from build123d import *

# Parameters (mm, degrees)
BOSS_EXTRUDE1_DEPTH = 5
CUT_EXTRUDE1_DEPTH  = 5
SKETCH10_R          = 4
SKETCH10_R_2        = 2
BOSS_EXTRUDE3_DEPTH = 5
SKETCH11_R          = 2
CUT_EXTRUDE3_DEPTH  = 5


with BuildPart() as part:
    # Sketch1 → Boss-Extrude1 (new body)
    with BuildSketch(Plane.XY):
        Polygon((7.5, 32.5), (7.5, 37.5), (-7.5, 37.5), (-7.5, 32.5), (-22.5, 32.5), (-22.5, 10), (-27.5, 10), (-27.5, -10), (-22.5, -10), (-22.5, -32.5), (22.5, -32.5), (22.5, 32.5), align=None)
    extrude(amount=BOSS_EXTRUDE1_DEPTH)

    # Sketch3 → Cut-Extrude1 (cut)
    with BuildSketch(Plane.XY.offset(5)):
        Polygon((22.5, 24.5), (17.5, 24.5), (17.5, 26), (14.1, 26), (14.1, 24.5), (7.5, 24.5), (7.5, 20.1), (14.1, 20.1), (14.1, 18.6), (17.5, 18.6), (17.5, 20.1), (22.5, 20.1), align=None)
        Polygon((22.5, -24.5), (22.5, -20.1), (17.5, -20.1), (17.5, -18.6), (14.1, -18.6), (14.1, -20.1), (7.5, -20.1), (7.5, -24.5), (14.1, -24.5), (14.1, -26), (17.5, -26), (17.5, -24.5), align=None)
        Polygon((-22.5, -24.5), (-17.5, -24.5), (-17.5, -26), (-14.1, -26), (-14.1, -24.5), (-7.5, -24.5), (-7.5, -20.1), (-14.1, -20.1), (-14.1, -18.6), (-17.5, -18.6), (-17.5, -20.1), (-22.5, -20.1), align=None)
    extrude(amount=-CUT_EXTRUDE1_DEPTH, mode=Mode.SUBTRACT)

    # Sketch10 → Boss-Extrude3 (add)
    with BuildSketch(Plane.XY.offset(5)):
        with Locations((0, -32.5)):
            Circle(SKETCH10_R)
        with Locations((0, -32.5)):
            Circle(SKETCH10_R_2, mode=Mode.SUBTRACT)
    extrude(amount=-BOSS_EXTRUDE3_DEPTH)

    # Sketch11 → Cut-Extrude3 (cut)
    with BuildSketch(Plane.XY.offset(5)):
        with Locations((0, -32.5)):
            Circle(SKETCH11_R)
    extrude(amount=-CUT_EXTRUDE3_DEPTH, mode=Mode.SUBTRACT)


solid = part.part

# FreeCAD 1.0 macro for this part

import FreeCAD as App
import Part
import Sketcher
Q = App.Units.Quantity

doc = App.newDocument("Part")
body = doc.addObject("PartDesign::Body", "Body")

sketch1 = body.newObject("Sketcher::SketchObject", "Sketch")
sketch1.AttachmentSupport = (doc.getObject("XY_Plane"), [""])
sketch1.MapMode = "FlatFace"
sketch1.addGeometry([
    Part.LineSegment(App.Vector(8, 32, 0), App.Vector(8, 38, 0)),
    Part.LineSegment(App.Vector(8, 38, 0), App.Vector(-8, 38, 0)),
    Part.LineSegment(App.Vector(-8, 38, 0), App.Vector(-8, 32, 0)),
    Part.LineSegment(App.Vector(-8, 32, 0), App.Vector(-22, 32, 0)),
    Part.LineSegment(App.Vector(-22, 32, 0), App.Vector(-22, 10, 0)),
    Part.LineSegment(App.Vector(-22, 10, 0), App.Vector(-28, 10, 0)),
    Part.LineSegment(App.Vector(-28, 10, 0), App.Vector(-28, -10, 0)),
    Part.LineSegment(App.Vector(-28, -10, 0), App.Vector(-22, -10, 0)),
    Part.LineSegment(App.Vector(-22, -10, 0), App.Vector(-22, -32, 0)),
    Part.LineSegment(App.Vector(-22, -32, 0), App.Vector(22, -32, 0)),
    Part.LineSegment(App.Vector(22, -32, 0), App.Vector(22, 32, 0)),
    Part.LineSegment(App.Vector(22, 32, 0), App.Vector(8, 32, 0)),
], False)
sketch1.addConstraint([
    Sketcher.Constraint("Coincident", 0, 2, 1, 1),
    Sketcher.Constraint("Coincident", 1, 2, 2, 1),
    Sketcher.Constraint("Coincident", 2, 2, 3, 1),
    Sketcher.Constraint("Coincident", 3, 2, 4, 1),
    Sketcher.Constraint("Coincident", 4, 2, 5, 1),
    Sketcher.Constraint("Coincident", 5, 2, 6, 1),
    Sketcher.Constraint("Coincident", 6, 2, 7, 1),
    Sketcher.Constraint("Coincident", 7, 2, 8, 1),
    Sketcher.Constraint("Coincident", 8, 2, 9, 1),
    Sketcher.Constraint("Coincident", 9, 2, 10, 1),
    Sketcher.Constraint("Coincident", 10, 2, 11, 1),
    Sketcher.Constraint("Coincident", 11, 2, 0, 1),
    Sketcher.Constraint("Vertical", 0),
    Sketcher.Constraint("Horizontal", 1),
    Sketcher.Constraint("Vertical", 2),
    Sketcher.Constraint("Horizontal", 3),
    Sketcher.Constraint("Vertical", 4),
    Sketcher.Constraint("Horizontal", 5),
    Sketcher.Constraint("Vertical", 6),
    Sketcher.Constraint("Horizontal", 7),
    Sketcher.Constraint("Vertical", 8),
    Sketcher.Constraint("Horizontal", 9),
    Sketcher.Constraint("Vertical", 10),
    Sketcher.Constraint("Horizontal", 11),
    Sketcher.Constraint("Symmetric", 3, 2, 9, 2, -1, 1),
    Sketcher.Constraint("Symmetric", 8, 2, 10, 2, -1, 1),
    Sketcher.Constraint("Equal", 1, 3),
    Sketcher.Constraint("Equal", 3, 11),
    Sketcher.Constraint("Equal", 7, 0),
    Sketcher.Constraint("Equal", 4, 8),
    Sketcher.Constraint("DistanceX", 1, 2, 1, 1, Q("15 mm")),
    Sketcher.Constraint("DistanceX", 5, 2, 5, 1, Q("5 mm")),
    Sketcher.Constraint("DistanceY", 6, 2, 6, 1, Q("20 mm")),
    Sketcher.Constraint("DistanceY", 10, 1, 10, 2, Q("65 mm")),
])
pad1 = body.newObject("PartDesign::Pad", "Pad")
pad1.Profile = sketch1
pad1.Length = 5

sketch2 = body.newObject("Sketcher::SketchObject", "Sketch001")
sketch2.AttachmentSupport = (doc.getObject("XY_Plane"), [""])
sketch2.MapMode = "FlatFace"
sketch2.AttachmentOffset = App.Placement(App.Vector(0, 0, 5), App.Rotation())
sketch2.addGeometry([
    Part.LineSegment(App.Vector(22.5, 24.5, 0), App.Vector(17.5, 24.5, 0)),
    Part.LineSegment(App.Vector(17.5, 24.5, 0), App.Vector(17.5, 26, 0)),
    Part.LineSegment(App.Vector(17.5, 26, 0), App.Vector(14.1, 26, 0)),
    Part.LineSegment(App.Vector(14.1, 26, 0), App.Vector(14.1, 24.5, 0)),
    Part.LineSegment(App.Vector(14.1, 24.5, 0), App.Vector(7.5, 24.5, 0)),
    Part.LineSegment(App.Vector(7.5, 24.5, 0), App.Vector(7.5, 20.1, 0)),
    Part.LineSegment(App.Vector(7.5, 20.1, 0), App.Vector(14.1, 20.1, 0)),
    Part.LineSegment(App.Vector(14.1, 20.1, 0), App.Vector(14.1, 18.6, 0)),
    Part.LineSegment(App.Vector(14.1, 18.6, 0), App.Vector(17.5, 18.6, 0)),
    Part.LineSegment(App.Vector(17.5, 18.6, 0), App.Vector(17.5, 20.1, 0)),
    Part.LineSegment(App.Vector(17.5, 20.1, 0), App.Vector(22.5, 20.1, 0)),
    Part.LineSegment(App.Vector(22.5, 20.1, 0), App.Vector(22.5, 24.5, 0)),
    Part.LineSegment(App.Vector(22.5, -24.5, 0), App.Vector(22.5, -20.1, 0)),
    Part.LineSegment(App.Vector(22.5, -20.1, 0), App.Vector(17.5, -20.1, 0)),
    Part.LineSegment(App.Vector(17.5, -20.1, 0), App.Vector(17.5, -18.6, 0)),
    Part.LineSegment(App.Vector(17.5, -18.6, 0), App.Vector(14.1, -18.6, 0)),
    Part.LineSegment(App.Vector(14.1, -18.6, 0), App.Vector(14.1, -20.1, 0)),
    Part.LineSegment(App.Vector(14.1, -20.1, 0), App.Vector(7.5, -20.1, 0)),
    Part.LineSegment(App.Vector(7.5, -20.1, 0), App.Vector(7.5, -24.5, 0)),
    Part.LineSegment(App.Vector(7.5, -24.5, 0), App.Vector(14.1, -24.5, 0)),
    Part.LineSegment(App.Vector(14.1, -24.5, 0), App.Vector(14.1, -26, 0)),
    Part.LineSegment(App.Vector(14.1, -26, 0), App.Vector(17.5, -26, 0)),
    Part.LineSegment(App.Vector(17.5, -26, 0), App.Vector(17.5, -24.5, 0)),
    Part.LineSegment(App.Vector(17.5, -24.5, 0), App.Vector(22.5, -24.5, 0)),
    Part.LineSegment(App.Vector(-22.5, -24.5, 0), App.Vector(-17.5, -24.5, 0)),
    Part.LineSegment(App.Vector(-17.5, -24.5, 0), App.Vector(-17.5, -26, 0)),
    Part.LineSegment(App.Vector(-17.5, -26, 0), App.Vector(-14.1, -26, 0)),
    Part.LineSegment(App.Vector(-14.1, -26, 0), App.Vector(-14.1, -24.5, 0)),
    Part.LineSegment(App.Vector(-14.1, -24.5, 0), App.Vector(-7.5, -24.5, 0)),
    Part.LineSegment(App.Vector(-7.5, -24.5, 0), App.Vector(-7.5, -20.1, 0)),
    Part.LineSegment(App.Vector(-7.5, -20.1, 0), App.Vector(-14.1, -20.1, 0)),
    Part.LineSegment(App.Vector(-14.1, -20.1, 0), App.Vector(-14.1, -18.6, 0)),
    Part.LineSegment(App.Vector(-14.1, -18.6, 0), App.Vector(-17.5, -18.6, 0)),
    Part.LineSegment(App.Vector(-17.5, -18.6, 0), App.Vector(-17.5, -20.1, 0)),
    Part.LineSegment(App.Vector(-17.5, -20.1, 0), App.Vector(-22.5, -20.1, 0)),
    Part.LineSegment(App.Vector(-22.5, -20.1, 0), App.Vector(-22.5, -24.5, 0)),
], False)
sketch2.addConstraint([
    Sketcher.Constraint("Coincident", 0, 2, 1, 1),
    Sketcher.Constraint("Coincident", 1, 2, 2, 1),
    Sketcher.Constraint("Coincident", 2, 2, 3, 1),
    Sketcher.Constraint("Coincident", 3, 2, 4, 1),
    Sketcher.Constraint("Coincident", 4, 2, 5, 1),
    Sketcher.Constraint("Coincident", 5, 2, 6, 1),
    Sketcher.Constraint("Coincident", 6, 2, 7, 1),
    Sketcher.Constraint("Coincident", 7, 2, 8, 1),
    Sketcher.Constraint("Coincident", 8, 2, 9, 1),
    Sketcher.Constraint("Coincident", 9, 2, 10, 1),
    Sketcher.Constraint("Coincident", 10, 2, 11, 1),
    Sketcher.Constraint("Coincident", 11, 2, 0, 1),
    Sketcher.Constraint("Coincident", 12, 2, 13, 1),
    Sketcher.Constraint("Coincident", 13, 2, 14, 1),
    Sketcher.Constraint("Coincident", 14, 2, 15, 1),
    Sketcher.Constraint("Coincident", 15, 2, 16, 1),
    Sketcher.Constraint("Coincident", 16, 2, 17, 1),
    Sketcher.Constraint("Coincident", 17, 2, 18, 1),
    Sketcher.Constraint("Coincident", 18, 2, 19, 1),
    Sketcher.Constraint("Coincident", 19, 2, 20, 1),
    Sketcher.Constraint("Coincident", 20, 2, 21, 1),
    Sketcher.Constraint("Coincident", 21, 2, 22, 1),
    Sketcher.Constraint("Coincident", 22, 2, 23, 1),
    Sketcher.Constraint("Coincident", 23, 2, 12, 1),
    Sketcher.Constraint("Coincident", 24, 2, 25, 1),
    Sketcher.Constraint("Coincident", 25, 2, 26, 1),
    Sketcher.Constraint("Coincident", 26, 2, 27, 1),
    Sketcher.Constraint("Coincident", 27, 2, 28, 1),
    Sketcher.Constraint("Coincident", 28, 2, 29, 1),
    Sketcher.Constraint("Coincident", 29, 2, 30, 1),
    Sketcher.Constraint("Coincident", 30, 2, 31, 1),
    Sketcher.Constraint("Coincident", 31, 2, 32, 1),
    Sketcher.Constraint("Coincident", 32, 2, 33, 1),
    Sketcher.Constraint("Coincident", 33, 2, 34, 1),
    Sketcher.Constraint("Coincident", 34, 2, 35, 1),
    Sketcher.Constraint("Coincident", 35, 2, 24, 1),
    Sketcher.Constraint("Horizontal", 0),
    Sketcher.Constraint("Vertical", 1),
    Sketcher.Constraint("Horizontal", 2),
    Sketcher.Constraint("Vertical", 3),
    Sketcher.Constraint("Horizontal", 4),
    Sketcher.Constraint("Vertical", 5),
    Sketcher.Constraint("Horizontal", 6),
    Sketcher.Constraint("Vertical", 7),
    Sketcher.Constraint("Horizontal", 8),
    Sketcher.Constraint("Vertical", 9),
    Sketcher.Constraint("Horizontal", 10),
    Sketcher.Constraint("Vertical", 11),
    Sketcher.Constraint("Vertical", 12),
    Sketcher.Constraint("Horizontal", 13),
    Sketcher.Constraint("Vertical", 14),
    Sketcher.Constraint("Horizontal", 15),
    Sketcher.Constraint("Vertical", 16),
    Sketcher.Constraint("Horizontal", 17),
    Sketcher.Constraint("Vertical", 18),
    Sketcher.Constraint("Horizontal", 19),
    Sketcher.Constraint("Vertical", 20),
    Sketcher.Constraint("Horizontal", 21),
    Sketcher.Constraint("Vertical", 22),
    Sketcher.Constraint("Horizontal", 23),
    Sketcher.Constraint("Horizontal", 24),
    Sketcher.Constraint("Vertical", 25),
    Sketcher.Constraint("Horizontal", 26),
    Sketcher.Constraint("Vertical", 27),
    Sketcher.Constraint("Horizontal", 28),
    Sketcher.Constraint("Vertical", 29),
    Sketcher.Constraint("Horizontal", 30),
    Sketcher.Constraint("Vertical", 31),
    Sketcher.Constraint("Horizontal", 32),
    Sketcher.Constraint("Vertical", 33),
    Sketcher.Constraint("Horizontal", 34),
    Sketcher.Constraint("Vertical", 35),
    Sketcher.Constraint("Symmetric", 0, 2, 24, 2, -1, 1),
    Sketcher.Constraint("Symmetric", 2, 2, 26, 2, -1, 1),
    Sketcher.Constraint("Symmetric", 4, 2, 28, 2, -1, 1),
    Sketcher.Constraint("Symmetric", 6, 2, 30, 2, -1, 1),
    Sketcher.Constraint("Symmetric", 8, 2, 32, 2, -1, 1),
    Sketcher.Constraint("Symmetric", 10, 2, 34, 2, -1, 1),
    Sketcher.Constraint("Symmetric", 22, 2, 24, 2, -2),
    Sketcher.Constraint("Symmetric", 20, 2, 26, 2, -2),
    Sketcher.Constraint("Symmetric", 18, 2, 28, 2, -2),
    Sketcher.Constraint("Symmetric", 16, 2, 30, 2, -2),
    Sketcher.Constraint("Symmetric", 14, 2, 32, 2, -2),
    Sketcher.Constraint("Symmetric", 12, 2, 34, 2, -2),
    Sketcher.Constraint("Horizontal", 0, 2, 3, 2),
    Sketcher.Constraint("Horizontal", 6, 2, 9, 2),
    Sketcher.Constraint("Vertical", 3, 2, 6, 2),
    Sketcher.Constraint("Vertical", 1, 2, 8, 2),
    Sketcher.Constraint("Equal", 3, 7),
    Sketcher.Constraint("DistanceX", 0, 2, 0, 1, Q("5 mm")),
    Sketcher.Constraint("DistanceX", 2, 2, 2, 1, Q("3.4 mm")),
    Sketcher.Constraint("DistanceX", 4, 2, 4, 1, Q("6.6 mm")),
    Sketcher.Constraint("DistanceY", 1, 1, 1, 2, Q("1.5 mm")),
    Sketcher.Constraint("DistanceY", 5, 2, 5, 1, Q("4.4 mm")),
    Sketcher.Constraint("DistanceY", -1, 1, 1, 2, Q("26 mm")),
    Sketcher.Constraint("DistanceX", 24, 2, 18, 2, Q("25 mm")),
])
pocket1 = body.newObject("PartDesign::Pocket", "Pocket")
pocket1.Profile = sketch2
pocket1.Length = 5

sketch3 = body.newObject("Sketcher::SketchObject", "Sketch002")
sketch3.AttachmentSupport = (doc.getObject("XY_Plane"), [""])
sketch3.MapMode = "FlatFace"
sketch3.AttachmentOffset = App.Placement(App.Vector(0, 0, 5), App.Rotation())
sketch3.addGeometry([
    Part.Circle(App.Vector(0, -32.5, 0), App.Vector(0, 0, 1), 4),
    Part.Circle(App.Vector(0, -32.5, 0), App.Vector(0, 0, 1), 2),
], False)
sketch3.addConstraint([
    Sketcher.Constraint("Coincident", 1, 3, 0, 3),
    Sketcher.Constraint("PointOnObject", 0, 3, -2),
    Sketcher.Constraint("Diameter", 0, Q("8 mm")),
    Sketcher.Constraint("Diameter", 1, Q("4 mm")),
    Sketcher.Constraint("DistanceY", 0, 3, -1, 1, Q("32.5 mm")),
])
pad2 = body.newObject("PartDesign::Pad", "Pad001")
pad2.Profile = sketch3
pad2.Length = 5
pad2.Reversed = True

sketch4 = body.newObject("Sketcher::SketchObject", "Sketch003")
sketch4.AttachmentSupport = (doc.getObject("XY_Plane"), [""])
sketch4.MapMode = "FlatFace"
sketch4.AttachmentOffset = App.Placement(App.Vector(0, 0, 5), App.Rotation())
sketch4.addGeometry(Part.Circle(App.Vector(0, -32.5, 0), App.Vector(0, 0, 1), 2), False)
sketch4.addConstraint([
    Sketcher.Constraint("PointOnObject", 0, 3, -2),
    Sketcher.Constraint("Diameter", 0, Q("4 mm")),
    Sketcher.Constraint("DistanceY", 0, 3, -1, 1, Q("32.5 mm")),
])
pocket2 = body.newObject("PartDesign::Pocket", "Pocket001")
pocket2.Profile = sketch4
pocket2.Length = 5

doc.recompute()
